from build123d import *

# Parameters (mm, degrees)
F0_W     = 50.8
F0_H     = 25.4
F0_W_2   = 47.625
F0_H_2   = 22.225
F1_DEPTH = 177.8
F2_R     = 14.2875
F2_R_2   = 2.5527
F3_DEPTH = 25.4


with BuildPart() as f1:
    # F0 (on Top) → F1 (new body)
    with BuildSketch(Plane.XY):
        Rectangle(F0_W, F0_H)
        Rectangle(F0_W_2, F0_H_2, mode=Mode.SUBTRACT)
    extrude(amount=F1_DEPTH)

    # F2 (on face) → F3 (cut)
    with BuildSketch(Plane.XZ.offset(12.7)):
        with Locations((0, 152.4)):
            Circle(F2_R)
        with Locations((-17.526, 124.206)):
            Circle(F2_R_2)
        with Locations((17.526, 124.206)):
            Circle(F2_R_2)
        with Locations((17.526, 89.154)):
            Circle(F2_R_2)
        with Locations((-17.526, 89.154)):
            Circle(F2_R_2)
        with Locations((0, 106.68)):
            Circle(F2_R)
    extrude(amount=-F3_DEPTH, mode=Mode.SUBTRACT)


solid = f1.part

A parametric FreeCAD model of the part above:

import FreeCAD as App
import Part
import Sketcher
Q = App.Units.Quantity


def add_polygon(sketch, points):
    """Adds a closed chain of lines whose ends are joined by coincident constraints."""
    first, n = sketch.GeometryCount, len(points)
    for a, b in zip(points, points[1:] + points[:1]):
        sketch.addGeometry(Part.LineSegment(App.Vector(*a, 0), App.Vector(*b, 0)), False)
    for i in range(n):
        sketch.addConstraint(Sketcher.Constraint("Coincident", first + i, 2, first + (i + 1) % n, 1))

doc = App.newDocument("Part")
body = doc.addObject("PartDesign::Body", "Body")

# Sketch on XY plane
sketch1 = body.newObject("Sketcher::SketchObject", "Sketch")
sketch1.AttachmentSupport = (doc.getObject("XY_Plane"), [""])
sketch1.MapMode = "FlatFace"
add_polygon(sketch1, [(-25.4, 12.7), (-25.4, -12.7), (25.4, -12.7), (25.4, 12.7)])  # lines 0-3
add_polygon(sketch1, [(23.8125, -11.1125), (-23.8125, -11.1125), (-23.8125, 11.1125), (23.8125, 11.1125)])  # lines 4-7
sketch1.addConstraint(Sketcher.Constraint("Vertical", 0))
sketch1.addConstraint(Sketcher.Constraint("Horizontal", 1))
sketch1.addConstraint(Sketcher.Constraint("Vertical", 2))
sketch1.addConstraint(Sketcher.Constraint("Horizontal", 3))
sketch1.addConstraint(Sketcher.Constraint("Horizontal", 4))
sketch1.addConstraint(Sketcher.Constraint("Vertical", 5))
sketch1.addConstraint(Sketcher.Constraint("Horizontal", 6))
sketch1.addConstraint(Sketcher.Constraint("Vertical", 7))
sketch1.addConstraint(Sketcher.Constraint("Symmetric", 0, 2, 2, 2, -1, 1))
sketch1.addConstraint(Sketcher.Constraint("Symmetric", 4, 2, 6, 2, -1, 1))
sketch1.addConstraint(Sketcher.Constraint("DistanceX", 1, 1, 1, 2, Q("2 in")))
sketch1.addConstraint(Sketcher.Constraint("DistanceY", 0, 2, 0, 1, Q("1 in")))
sketch1.addConstraint(Sketcher.Constraint("DistanceX", 4, 2, 4, 1, Q("1.875 in")))
sketch1.addConstraint(Sketcher.Constraint("DistanceY", 5, 1, 5, 2, Q("0.875 in")))
pad1 = body.newObject("PartDesign::Pad", "Pad")
pad1.Profile = sketch1
pad1.Length = Q("7 in")

# Sketch on XZ plane
sketch2 = body.newObject("Sketcher::SketchObject", "Sketch001")
sketch2.AttachmentSupport = (doc.getObject("XZ_Plane"), [""])
sketch2.MapMode = "FlatFace"
sketch2.AttachmentOffset = App.Placement(App.Vector(0, 0, 0.5 * 25.4), App.Rotation())
sketch2.addGeometry(Part.Circle(App.Vector(0, 152.4, 0), App.Vector(0, 0, 1), 14.2875), False)
sketch2.addGeometry(Part.Circle(App.Vector(-17.526, 124.206, 0), App.Vector(0, 0, 1), 2.5527), False)
sketch2.addGeometry(Part.Circle(App.Vector(17.526, 124.206, 0), App.Vector(0, 0, 1), 2.5527), False)
sketch2.addGeometry(Part.Circle(App.Vector(17.526, 89.154, 0), App.Vector(0, 0, 1), 2.5527), False)
sketch2.addGeometry(Part.Circle(App.Vector(-17.526, 89.154, 0), App.Vector(0, 0, 1), 2.5527), False)
sketch2.addGeometry(Part.Circle(App.Vector(0, 106.68, 0), App.Vector(0, 0, 1), 14.2875), False)
sketch2.addConstraint(Sketcher.Constraint("Equal", 1, 2))
sketch2.addConstraint(Sketcher.Constraint("Equal", 2, 3))
sketch2.addConstraint(Sketcher.Constraint("Equal", 3, 4))
sketch2.addConstraint(Sketcher.Constraint("Equal", 0, 5))
sketch2.addConstraint(Sketcher.Constraint("Symmetric", 1, 3, 2, 3, -2))
sketch2.addConstraint(Sketcher.Constraint("Symmetric", 3, 3, 4, 3, -2))
sketch2.addConstraint(Sketcher.Constraint("PointOnObject", 0, 3, -2))
sketch2.addConstraint(Sketcher.Constraint("PointOnObject", 5, 3, -2))
sketch2.addConstraint(Sketcher.Constraint("Vertical", 2, 3, 3, 3))
sketch2.addConstraint(Sketcher.Constraint("Diameter", 0, Q("1.125 in")))
sketch2.addConstraint(Sketcher.Constraint("Diameter", 1, Q("0.201 in")))
sketch2.addConstraint(Sketcher.Constraint("DistanceY", -1, 1, 0, 3, Q("6 in")))
sketch2.addConstraint(Sketcher.Constraint("DistanceY", -1, 1, 5, 3, Q("4.2 in")))
sketch2.addConstraint(Sketcher.Constraint("DistanceX", 1, 3, -1, 1, Q("0.69 in")))
sketch2.addConstraint(Sketcher.Constraint("DistanceY", -1, 1, 1, 3, Q("4.89 in")))
sketch2.addConstraint(Sketcher.Constraint("DistanceY", -1, 1, 3, 3, Q("3.51 in")))
pocket1 = body.newObject("PartDesign::Pocket", "Pocket")
pocket1.Profile = sketch2
pocket1.Length = Q("1 in")

doc.recompute()
